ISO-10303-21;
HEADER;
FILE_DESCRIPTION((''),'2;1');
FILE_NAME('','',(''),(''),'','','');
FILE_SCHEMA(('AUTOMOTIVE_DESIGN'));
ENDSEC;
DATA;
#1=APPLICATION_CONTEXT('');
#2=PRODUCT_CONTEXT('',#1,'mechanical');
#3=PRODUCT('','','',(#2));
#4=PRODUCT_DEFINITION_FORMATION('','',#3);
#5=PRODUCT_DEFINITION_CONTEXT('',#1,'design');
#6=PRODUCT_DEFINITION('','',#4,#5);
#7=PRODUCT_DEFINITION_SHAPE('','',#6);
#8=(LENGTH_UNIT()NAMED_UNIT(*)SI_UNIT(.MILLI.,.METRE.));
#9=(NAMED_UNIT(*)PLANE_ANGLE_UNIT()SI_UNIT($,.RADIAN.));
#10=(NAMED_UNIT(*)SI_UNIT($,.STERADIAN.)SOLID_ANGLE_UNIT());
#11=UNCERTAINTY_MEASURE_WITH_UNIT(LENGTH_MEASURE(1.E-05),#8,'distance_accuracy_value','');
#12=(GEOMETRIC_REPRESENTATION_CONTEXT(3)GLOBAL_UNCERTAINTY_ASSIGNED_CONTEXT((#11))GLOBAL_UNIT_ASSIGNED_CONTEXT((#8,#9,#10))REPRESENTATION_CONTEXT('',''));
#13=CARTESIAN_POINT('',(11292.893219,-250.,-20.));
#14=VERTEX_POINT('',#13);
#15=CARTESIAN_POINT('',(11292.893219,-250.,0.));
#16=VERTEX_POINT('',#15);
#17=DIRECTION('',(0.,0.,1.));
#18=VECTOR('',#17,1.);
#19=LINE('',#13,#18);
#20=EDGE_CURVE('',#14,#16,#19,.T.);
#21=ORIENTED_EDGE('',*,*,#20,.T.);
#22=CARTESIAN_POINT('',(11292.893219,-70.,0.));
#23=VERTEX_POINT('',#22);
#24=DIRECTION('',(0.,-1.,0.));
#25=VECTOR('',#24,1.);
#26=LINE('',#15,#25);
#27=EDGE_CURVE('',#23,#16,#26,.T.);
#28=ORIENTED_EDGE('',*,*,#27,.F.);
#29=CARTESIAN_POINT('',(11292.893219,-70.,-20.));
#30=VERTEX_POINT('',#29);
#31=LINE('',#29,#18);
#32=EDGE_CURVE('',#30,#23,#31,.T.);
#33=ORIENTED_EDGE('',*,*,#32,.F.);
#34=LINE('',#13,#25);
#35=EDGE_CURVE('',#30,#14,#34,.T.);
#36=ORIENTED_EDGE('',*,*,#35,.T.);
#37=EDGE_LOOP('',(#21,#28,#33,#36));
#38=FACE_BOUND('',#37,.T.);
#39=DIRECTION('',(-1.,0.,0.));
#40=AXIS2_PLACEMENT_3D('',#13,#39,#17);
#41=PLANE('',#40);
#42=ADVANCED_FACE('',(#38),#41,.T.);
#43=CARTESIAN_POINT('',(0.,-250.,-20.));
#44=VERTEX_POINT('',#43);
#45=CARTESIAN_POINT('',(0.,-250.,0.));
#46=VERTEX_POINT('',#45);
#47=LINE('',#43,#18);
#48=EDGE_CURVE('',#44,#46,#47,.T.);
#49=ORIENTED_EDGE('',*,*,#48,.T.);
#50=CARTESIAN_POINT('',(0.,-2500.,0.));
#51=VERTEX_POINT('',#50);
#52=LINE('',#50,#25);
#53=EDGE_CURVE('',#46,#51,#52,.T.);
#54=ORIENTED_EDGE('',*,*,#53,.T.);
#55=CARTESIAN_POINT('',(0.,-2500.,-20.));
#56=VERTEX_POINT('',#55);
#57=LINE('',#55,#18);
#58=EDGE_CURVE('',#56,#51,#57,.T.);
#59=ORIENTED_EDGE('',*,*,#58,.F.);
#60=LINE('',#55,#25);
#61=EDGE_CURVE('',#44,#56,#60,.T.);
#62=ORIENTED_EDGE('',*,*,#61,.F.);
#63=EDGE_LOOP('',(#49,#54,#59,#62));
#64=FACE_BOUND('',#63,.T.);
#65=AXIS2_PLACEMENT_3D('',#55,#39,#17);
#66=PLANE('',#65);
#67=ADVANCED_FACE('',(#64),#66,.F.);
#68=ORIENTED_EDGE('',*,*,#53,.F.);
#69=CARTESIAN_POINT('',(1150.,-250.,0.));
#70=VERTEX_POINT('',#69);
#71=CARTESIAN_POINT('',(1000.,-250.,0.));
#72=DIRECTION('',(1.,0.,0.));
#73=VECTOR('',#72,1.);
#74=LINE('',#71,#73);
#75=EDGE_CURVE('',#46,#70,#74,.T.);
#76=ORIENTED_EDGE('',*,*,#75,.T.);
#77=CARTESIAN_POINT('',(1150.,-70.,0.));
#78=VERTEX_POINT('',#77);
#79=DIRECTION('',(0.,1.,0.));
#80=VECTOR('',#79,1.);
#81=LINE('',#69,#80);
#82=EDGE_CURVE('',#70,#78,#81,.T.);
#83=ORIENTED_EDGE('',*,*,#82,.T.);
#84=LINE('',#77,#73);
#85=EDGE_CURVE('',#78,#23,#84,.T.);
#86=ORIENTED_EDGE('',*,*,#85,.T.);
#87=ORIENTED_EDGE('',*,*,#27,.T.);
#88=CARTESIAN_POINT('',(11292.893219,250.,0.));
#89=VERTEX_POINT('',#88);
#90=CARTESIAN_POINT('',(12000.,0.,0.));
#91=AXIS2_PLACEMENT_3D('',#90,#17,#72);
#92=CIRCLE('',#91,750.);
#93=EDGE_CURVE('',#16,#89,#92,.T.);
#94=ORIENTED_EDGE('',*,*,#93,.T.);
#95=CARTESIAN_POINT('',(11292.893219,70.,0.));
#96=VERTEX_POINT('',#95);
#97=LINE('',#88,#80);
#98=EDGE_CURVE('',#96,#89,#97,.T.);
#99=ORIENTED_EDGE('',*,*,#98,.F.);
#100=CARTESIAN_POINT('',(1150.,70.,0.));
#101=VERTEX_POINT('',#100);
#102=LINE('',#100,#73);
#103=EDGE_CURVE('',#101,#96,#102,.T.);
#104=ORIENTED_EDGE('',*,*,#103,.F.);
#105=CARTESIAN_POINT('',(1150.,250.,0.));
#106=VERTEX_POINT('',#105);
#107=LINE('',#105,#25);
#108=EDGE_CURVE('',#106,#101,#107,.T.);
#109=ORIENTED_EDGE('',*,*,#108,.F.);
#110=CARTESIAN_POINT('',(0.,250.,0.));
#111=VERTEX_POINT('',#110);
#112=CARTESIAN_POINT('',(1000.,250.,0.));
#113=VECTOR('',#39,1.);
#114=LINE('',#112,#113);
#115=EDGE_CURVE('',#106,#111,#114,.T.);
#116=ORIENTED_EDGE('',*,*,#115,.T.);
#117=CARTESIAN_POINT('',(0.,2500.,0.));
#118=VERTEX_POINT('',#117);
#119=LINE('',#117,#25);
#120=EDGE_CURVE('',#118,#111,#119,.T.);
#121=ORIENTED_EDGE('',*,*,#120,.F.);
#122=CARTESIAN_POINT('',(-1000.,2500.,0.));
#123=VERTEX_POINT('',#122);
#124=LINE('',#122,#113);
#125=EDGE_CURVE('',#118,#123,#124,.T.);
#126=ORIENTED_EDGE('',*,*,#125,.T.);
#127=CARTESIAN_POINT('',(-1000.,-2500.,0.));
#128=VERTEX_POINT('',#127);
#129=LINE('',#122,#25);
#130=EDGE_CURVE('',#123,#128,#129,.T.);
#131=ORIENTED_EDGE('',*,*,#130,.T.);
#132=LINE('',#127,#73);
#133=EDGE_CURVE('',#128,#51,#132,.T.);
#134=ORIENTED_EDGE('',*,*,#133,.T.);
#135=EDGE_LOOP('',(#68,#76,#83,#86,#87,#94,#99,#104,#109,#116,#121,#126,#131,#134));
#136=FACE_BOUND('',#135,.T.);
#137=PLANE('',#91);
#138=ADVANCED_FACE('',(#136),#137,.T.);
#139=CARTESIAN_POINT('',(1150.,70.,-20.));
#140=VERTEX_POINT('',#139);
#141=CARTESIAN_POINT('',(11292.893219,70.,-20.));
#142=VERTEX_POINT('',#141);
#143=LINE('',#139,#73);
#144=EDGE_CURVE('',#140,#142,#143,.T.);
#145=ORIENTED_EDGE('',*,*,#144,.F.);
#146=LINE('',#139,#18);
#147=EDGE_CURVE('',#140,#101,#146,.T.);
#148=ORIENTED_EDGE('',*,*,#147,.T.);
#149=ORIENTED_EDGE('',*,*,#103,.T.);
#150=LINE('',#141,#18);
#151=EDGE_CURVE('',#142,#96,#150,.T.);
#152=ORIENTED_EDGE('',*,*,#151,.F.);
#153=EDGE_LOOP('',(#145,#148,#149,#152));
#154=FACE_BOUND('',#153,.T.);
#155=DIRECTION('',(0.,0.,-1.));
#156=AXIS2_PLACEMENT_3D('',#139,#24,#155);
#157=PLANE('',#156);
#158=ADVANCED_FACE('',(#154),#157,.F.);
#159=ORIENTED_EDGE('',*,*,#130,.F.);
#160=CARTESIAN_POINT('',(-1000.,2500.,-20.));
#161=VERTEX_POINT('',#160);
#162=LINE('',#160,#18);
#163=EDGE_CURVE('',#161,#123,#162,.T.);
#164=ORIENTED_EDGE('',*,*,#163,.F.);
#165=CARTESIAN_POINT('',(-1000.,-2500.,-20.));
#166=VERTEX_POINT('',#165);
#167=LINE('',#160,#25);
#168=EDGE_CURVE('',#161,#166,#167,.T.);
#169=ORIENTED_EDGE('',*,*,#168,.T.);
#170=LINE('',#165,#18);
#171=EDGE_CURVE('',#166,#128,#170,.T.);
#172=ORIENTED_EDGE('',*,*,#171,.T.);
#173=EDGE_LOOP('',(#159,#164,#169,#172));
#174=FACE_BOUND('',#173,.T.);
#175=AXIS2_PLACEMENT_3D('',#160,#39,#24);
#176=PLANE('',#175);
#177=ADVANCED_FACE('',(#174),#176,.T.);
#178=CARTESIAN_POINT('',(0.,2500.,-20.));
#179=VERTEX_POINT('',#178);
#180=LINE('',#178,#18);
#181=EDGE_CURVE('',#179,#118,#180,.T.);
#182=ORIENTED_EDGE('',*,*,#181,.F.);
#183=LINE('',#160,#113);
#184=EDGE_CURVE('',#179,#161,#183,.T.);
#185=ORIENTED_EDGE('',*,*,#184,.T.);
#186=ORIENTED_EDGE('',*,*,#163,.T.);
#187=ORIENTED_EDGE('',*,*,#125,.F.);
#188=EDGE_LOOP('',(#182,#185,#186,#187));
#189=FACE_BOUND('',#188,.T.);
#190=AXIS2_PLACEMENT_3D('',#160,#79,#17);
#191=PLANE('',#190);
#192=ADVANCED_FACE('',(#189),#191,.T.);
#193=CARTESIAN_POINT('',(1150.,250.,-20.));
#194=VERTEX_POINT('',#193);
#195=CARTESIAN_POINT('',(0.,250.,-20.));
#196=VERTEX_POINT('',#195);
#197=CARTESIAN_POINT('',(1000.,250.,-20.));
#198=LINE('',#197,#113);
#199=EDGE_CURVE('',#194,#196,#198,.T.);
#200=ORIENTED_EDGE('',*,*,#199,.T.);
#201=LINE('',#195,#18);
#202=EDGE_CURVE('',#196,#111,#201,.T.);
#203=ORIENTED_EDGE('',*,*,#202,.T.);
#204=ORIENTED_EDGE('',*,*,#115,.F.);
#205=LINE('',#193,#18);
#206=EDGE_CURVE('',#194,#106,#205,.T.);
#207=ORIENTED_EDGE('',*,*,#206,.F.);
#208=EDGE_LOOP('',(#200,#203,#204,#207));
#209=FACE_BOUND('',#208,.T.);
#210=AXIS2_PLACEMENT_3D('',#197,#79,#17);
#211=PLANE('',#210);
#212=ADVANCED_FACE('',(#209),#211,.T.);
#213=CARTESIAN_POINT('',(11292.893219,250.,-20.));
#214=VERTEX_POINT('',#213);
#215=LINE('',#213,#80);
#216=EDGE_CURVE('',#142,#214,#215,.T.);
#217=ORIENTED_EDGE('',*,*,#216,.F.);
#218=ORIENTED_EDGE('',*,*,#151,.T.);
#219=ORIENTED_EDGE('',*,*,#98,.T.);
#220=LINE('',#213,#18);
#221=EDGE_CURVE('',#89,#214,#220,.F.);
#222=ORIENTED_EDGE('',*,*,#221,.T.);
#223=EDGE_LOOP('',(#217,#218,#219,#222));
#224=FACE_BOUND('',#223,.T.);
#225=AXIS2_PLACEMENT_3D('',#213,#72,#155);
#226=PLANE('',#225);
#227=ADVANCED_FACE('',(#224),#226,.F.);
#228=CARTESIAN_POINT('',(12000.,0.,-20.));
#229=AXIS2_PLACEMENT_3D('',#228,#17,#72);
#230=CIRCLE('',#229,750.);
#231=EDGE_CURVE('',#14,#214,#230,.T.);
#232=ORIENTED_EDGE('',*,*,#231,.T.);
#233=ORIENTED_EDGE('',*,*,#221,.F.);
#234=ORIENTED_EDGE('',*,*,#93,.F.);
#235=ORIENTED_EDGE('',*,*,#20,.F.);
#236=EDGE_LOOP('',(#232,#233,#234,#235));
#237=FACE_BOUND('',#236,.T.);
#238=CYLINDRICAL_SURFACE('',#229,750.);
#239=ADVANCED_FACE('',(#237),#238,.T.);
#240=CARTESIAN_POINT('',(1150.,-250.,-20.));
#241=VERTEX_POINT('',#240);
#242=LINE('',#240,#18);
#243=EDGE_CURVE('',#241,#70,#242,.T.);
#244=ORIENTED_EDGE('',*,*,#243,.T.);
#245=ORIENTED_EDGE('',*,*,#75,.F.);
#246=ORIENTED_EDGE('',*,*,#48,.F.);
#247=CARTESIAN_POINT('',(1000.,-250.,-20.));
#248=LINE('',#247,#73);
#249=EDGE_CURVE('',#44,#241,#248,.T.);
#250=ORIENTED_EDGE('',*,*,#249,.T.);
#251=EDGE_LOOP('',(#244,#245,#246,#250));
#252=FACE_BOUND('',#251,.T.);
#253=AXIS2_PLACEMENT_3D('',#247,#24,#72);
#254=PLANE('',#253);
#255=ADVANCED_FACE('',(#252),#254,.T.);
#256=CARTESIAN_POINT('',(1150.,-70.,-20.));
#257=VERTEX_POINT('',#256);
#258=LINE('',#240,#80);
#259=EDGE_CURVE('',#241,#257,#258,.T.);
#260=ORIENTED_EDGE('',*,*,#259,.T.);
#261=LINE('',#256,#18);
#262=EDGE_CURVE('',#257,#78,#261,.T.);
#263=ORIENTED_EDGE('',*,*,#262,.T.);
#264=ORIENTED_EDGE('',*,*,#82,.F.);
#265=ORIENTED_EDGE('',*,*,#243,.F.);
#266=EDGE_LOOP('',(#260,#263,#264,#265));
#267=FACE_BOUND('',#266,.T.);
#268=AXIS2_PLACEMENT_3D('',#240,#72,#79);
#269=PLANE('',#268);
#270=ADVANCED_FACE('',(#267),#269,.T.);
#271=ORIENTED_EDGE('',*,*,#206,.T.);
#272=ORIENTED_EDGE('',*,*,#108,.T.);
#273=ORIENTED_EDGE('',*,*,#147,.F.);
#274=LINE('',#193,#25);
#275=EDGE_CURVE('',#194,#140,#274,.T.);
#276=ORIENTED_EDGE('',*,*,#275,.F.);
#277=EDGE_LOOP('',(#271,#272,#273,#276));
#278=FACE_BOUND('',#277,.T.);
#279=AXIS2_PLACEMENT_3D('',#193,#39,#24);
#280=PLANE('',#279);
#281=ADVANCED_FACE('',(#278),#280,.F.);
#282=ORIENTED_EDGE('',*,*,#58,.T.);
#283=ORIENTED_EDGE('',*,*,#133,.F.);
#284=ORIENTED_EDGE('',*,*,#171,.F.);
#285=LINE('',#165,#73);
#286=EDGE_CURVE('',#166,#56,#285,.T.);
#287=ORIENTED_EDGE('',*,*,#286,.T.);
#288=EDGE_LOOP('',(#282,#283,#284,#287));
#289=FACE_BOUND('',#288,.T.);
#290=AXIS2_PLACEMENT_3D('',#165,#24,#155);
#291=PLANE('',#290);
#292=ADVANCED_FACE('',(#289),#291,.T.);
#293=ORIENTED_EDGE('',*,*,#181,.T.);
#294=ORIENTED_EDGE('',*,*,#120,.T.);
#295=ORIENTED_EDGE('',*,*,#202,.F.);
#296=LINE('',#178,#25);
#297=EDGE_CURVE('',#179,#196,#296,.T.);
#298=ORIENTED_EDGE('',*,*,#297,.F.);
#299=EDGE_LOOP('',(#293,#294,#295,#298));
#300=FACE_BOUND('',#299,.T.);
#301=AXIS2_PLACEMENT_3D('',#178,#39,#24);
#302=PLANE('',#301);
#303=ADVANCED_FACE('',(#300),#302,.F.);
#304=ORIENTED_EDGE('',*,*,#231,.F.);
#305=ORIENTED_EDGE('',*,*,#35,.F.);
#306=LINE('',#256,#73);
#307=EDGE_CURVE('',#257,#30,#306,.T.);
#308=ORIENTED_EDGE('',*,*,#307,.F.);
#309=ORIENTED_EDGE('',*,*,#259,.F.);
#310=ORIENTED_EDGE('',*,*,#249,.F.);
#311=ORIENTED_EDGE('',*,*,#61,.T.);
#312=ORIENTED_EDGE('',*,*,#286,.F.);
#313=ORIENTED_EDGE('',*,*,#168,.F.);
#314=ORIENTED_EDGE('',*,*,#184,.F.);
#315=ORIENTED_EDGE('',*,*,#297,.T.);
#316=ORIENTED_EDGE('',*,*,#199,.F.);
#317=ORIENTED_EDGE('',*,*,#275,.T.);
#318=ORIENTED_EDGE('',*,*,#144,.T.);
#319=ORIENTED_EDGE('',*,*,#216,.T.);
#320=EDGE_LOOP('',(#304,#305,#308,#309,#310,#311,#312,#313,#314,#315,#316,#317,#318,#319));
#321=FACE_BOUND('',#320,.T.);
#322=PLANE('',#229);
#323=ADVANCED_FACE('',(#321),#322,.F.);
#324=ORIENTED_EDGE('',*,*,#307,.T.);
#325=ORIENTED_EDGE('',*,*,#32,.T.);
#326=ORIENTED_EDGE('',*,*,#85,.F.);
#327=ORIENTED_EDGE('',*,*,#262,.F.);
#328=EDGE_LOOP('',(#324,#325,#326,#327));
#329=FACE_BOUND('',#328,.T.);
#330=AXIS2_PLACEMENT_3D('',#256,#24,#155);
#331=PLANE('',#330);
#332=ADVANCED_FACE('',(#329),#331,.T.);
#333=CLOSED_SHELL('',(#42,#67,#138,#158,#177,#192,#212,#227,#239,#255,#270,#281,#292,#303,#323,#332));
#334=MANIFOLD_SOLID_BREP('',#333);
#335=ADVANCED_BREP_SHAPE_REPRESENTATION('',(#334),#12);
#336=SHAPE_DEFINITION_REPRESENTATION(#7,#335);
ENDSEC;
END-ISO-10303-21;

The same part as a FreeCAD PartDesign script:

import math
import FreeCAD as App
import Part
import Sketcher
from FreeCAD import Vector


def add_polygon(sketch, points):
    """Adds a closed chain of lines whose ends are joined by coincident constraints."""
    first, n = sketch.GeometryCount, len(points)
    for a, b in zip(points, points[1:] + points[:1]):
        sketch.addGeometry(Part.LineSegment(App.Vector(*a, 0), App.Vector(*b, 0)), False)
    for i in range(n):
        sketch.addConstraint(Sketcher.Constraint("Coincident", first + i, 2, first + (i + 1) % n, 1))

doc = App.newDocument("Part")
body = doc.addObject("PartDesign::Body", "Body")

sketch1 = doc.addObject("Sketcher::SketchObject", "Sketch")
body.addObject(sketch1)
sketch1.AttachmentSupport = (doc.XY_Plane, [""])
sketch1.MapMode = "FlatFace"
sketch1.addGeometry([
    Part.LineSegment(Vector(5000, 250, 0), Vector(1000, 250, 0)),
    Part.LineSegment(Vector(1000, 250, 0), Vector(1000, 2500, 0)),
    Part.LineSegment(Vector(1000, 2500, 0), Vector(-1000, 2500, 0)),
    Part.LineSegment(Vector(-1000, 2500, 0), Vector(-1000, -2500, 0)),
    Part.LineSegment(Vector(-1000, -2500, 0), Vector(1000, -2500, 0)),
    Part.LineSegment(Vector(1000, -2500, 0), Vector(1000, -250, 0)),
    Part.LineSegment(Vector(1000, -250, 0), Vector(5000, -250, 0)),
    Part.LineSegment(Vector(5000, -250, 0), Vector(5000, -125, 0)),
    Part.LineSegment(Vector(5000, -125, 0), Vector(9000, -125, 0)),
    Part.LineSegment(Vector(9000, -125, 0), Vector(9000, -100, 0)),
    Part.LineSegment(Vector(9000, -100, 0), Vector(11257, -100, 0)),
    Part.ArcOfCircle(Part.Circle(Vector(12000, 0, 0), Vector(0, 0, 1), 750), math.radians(-172), math.radians(172)),
    Part.LineSegment(Vector(11257, 100, 0), Vector(9000, 100, 0)),
    Part.LineSegment(Vector(9000, 100, 0), Vector(9000, 125, 0)),
    Part.LineSegment(Vector(9000, 125, 0), Vector(5000, 125, 0)),
    Part.LineSegment(Vector(5000, 125, 0), Vector(5000, 250, 0)),
], False)
sketch1.addConstraint([
    Sketcher.Constraint("Coincident", 0, 2, 1, 1),
    Sketcher.Constraint("Coincident", 1, 2, 2, 1),
    Sketcher.Constraint("Coincident", 2, 2, 3, 1),
    Sketcher.Constraint("Coincident", 3, 2, 4, 1),
    Sketcher.Constraint("Coincident", 4, 2, 5, 1),
    Sketcher.Constraint("Coincident", 5, 2, 6, 1),
    Sketcher.Constraint("Coincident", 6, 2, 7, 1),
    Sketcher.Constraint("Coincident", 7, 2, 8, 1),
    Sketcher.Constraint("Coincident", 8, 2, 9, 1),
    Sketcher.Constraint("Coincident", 9, 2, 10, 1),
    Sketcher.Constraint("Coincident", 10, 2, 11, 1),
    Sketcher.Constraint("Coincident", 11, 2, 12, 1),
    Sketcher.Constraint("Coincident", 12, 2, 13, 1),
    Sketcher.Constraint("Coincident", 13, 2, 14, 1),
    Sketcher.Constraint("Coincident", 14, 2, 15, 1),
    Sketcher.Constraint("Coincident", 15, 2, 0, 1),
    Sketcher.Constraint("Horizontal", 0),
    Sketcher.Constraint("Vertical", 1),
    Sketcher.Constraint("Horizontal", 2),
    Sketcher.Constraint("Vertical", 3),
    Sketcher.Constraint("Horizontal", 4),
    Sketcher.Constraint("Vertical", 5),
    Sketcher.Constraint("Horizontal", 6),
    Sketcher.Constraint("Vertical", 7),
    Sketcher.Constraint("Horizontal", 8),
    Sketcher.Constraint("Vertical", 9),
    Sketcher.Constraint("Horizontal", 10),
    Sketcher.Constraint("Horizontal", 12),
    Sketcher.Constraint("Vertical", 13),
    Sketcher.Constraint("Horizontal", 14),
    Sketcher.Constraint("Vertical", 15),
    Sketcher.Constraint("Symmetric", 1, 2, 3, 2, -1, 1),
    Sketcher.Constraint("Symmetric", 0, 2, 5, 2, -1),
    Sketcher.Constraint("Symmetric", 9, 2, 12, 2, -1),
    Sketcher.Constraint("Symmetric", 7, 2, 14, 2, -1),
    Sketcher.Constraint("PointOnObject", 11, 3, -1),
    Sketcher.Constraint("Equal", 6, 8),
    Sketcher.Constraint("Radius", 11, 750.0),
    Sketcher.Constraint("DistanceX", 0, 2, 0, 1, 4000.0),
    Sketcher.Constraint("DistanceX", 2, 2, 2, 1, 2000.0),
    Sketcher.Constraint("DistanceY", 1, 1, 1, 2, 2250.0),
    Sketcher.Constraint("DistanceY", 3, 2, 3, 1, 5000.0),
    Sketcher.Constraint("DistanceY", 7, 1, 7, 2, 125.0),
    Sketcher.Constraint("DistanceY", 9, 1, 9, 2, 25.0),
    Sketcher.Constraint("DistanceX", -1, 1, 11, 3, 12000.0),
])
pad1 = doc.addObject("PartDesign::Pad", "Pad")
body.addObject(pad1)
pad1.Profile = sketch1
pad1.Length = 20
pad1.Reversed = True

sketch2 = doc.addObject("Sketcher::SketchObject", "Sketch001")
body.addObject(sketch2)
sketch2.AttachmentSupport = (doc.XY_Plane, [""])
sketch2.MapMode = "FlatFace"
add_polygon(sketch2, [(0, 2500), (0, 250), (1000, 250), (1000, 2500)])
add_polygon(sketch2, [(0, -250), (0, -2500), (1000, -2500), (1000, -250)])
sketch2.addConstraint([
    Sketcher.Constraint("Vertical", 0),
    Sketcher.Constraint("Horizontal", 1),
    Sketcher.Constraint("Vertical", 2),
    Sketcher.Constraint("Horizontal", 3),
    Sketcher.Constraint("Vertical", 4),
    Sketcher.Constraint("Horizontal", 5),
    Sketcher.Constraint("Vertical", 6),
    Sketcher.Constraint("Horizontal", 7),
    Sketcher.Constraint("Symmetric", 3, 2, 4, 2, -1, 1),
    Sketcher.Constraint("Symmetric", 1, 2, 6, 2, -1),
    Sketcher.Constraint("PointOnObject", 0, 2, -2),
    Sketcher.Constraint("DistanceX", 1, 1, 1, 2, 1000.0),
    Sketcher.Constraint("DistanceY", 0, 2, 0, 1, 2250.0),
    Sketcher.Constraint("DistanceY", -1, 1, 0, 2, 250.0),
])
pocket1 = doc.addObject("PartDesign::Pocket", "Pocket")
body.addObject(pocket1)
pocket1.Profile = sketch2
pocket1.Type = "ThroughAll"

sketch3 = doc.addObject("Sketcher::SketchObject", "Sketch002")
body.addObject(sketch3)
sketch3.AttachmentSupport = (doc.XY_Plane, [""])
sketch3.MapMode = "FlatFace"
add_polygon(sketch3, [(1500, -250), (5000, -250), (5000, -150), (3250, -150), (3250, -200), (1500, -200)])
sketch3.addConstraint([
    Sketcher.Constraint("Horizontal", 0),
    Sketcher.Constraint("Vertical", 1),
    Sketcher.Constraint("Horizontal", 2),
    Sketcher.Constraint("Vertical", 3),
    Sketcher.Constraint("Horizontal", 4),
    Sketcher.Constraint("Vertical", 5),
    Sketcher.Constraint("Equal", 2, 4),
    Sketcher.Constraint("Equal", 3, 5),
    Sketcher.Constraint("DistanceX", 0, 1, 0, 2, 3500.0),
    Sketcher.Constraint("DistanceY", 1, 1, 1, 2, 100.0),
    Sketcher.Constraint("DistanceX", -1, 1, 0, 2, 5000.0),
    Sketcher.Constraint("DistanceY", 0, 2, -1, 1, 250.0),
])
pocket2 = doc.addObject("PartDesign::Pocket", "Pocket001")
body.addObject(pocket2)
pocket2.Profile = sketch3
pocket2.Type = "ThroughAll"
doc.recompute()

mirrored = doc.addObject("PartDesign::Mirrored", "Mirrored")
body.addObject(mirrored)
mirrored.Originals = [pocket2]
mirrored.MirrorPlane = (doc.XZ_Plane, [""])
body.Tip = mirrored

sketch4 = doc.addObject("Sketcher::SketchObject", "Sketch003")
body.addObject(sketch4)
sketch4.AttachmentSupport = (doc.XY_Plane, [""])
sketch4.MapMode = "FlatFace"
add_polygon(sketch4, [(0, 250), (0, -250), (11500, -250), (11500, 250)])
sketch4.addConstraint([
    Sketcher.Constraint("Vertical", 0),
    Sketcher.Constraint("Horizontal", 1),
    Sketcher.Constraint("Vertical", 2),
    Sketcher.Constraint("Horizontal", 3),
    Sketcher.Constraint("Symmetric", 0, 2, 3, 2, -1, 1),
    Sketcher.Constraint("DistanceX", 1, 1, 1, 2, 11500.0),
    Sketcher.Constraint("DistanceY", 0, 2, 0, 1, 500.0),
])
pad2 = doc.addObject("PartDesign::Pad", "Pad001")
body.addObject(pad2)
pad2.Profile = sketch4
pad2.Length = 20
pad2.Reversed = True

sketch5 = doc.addObject("Sketcher::SketchObject", "Sketch004")
body.addObject(sketch5)
sketch5.AttachmentSupport = (doc.XY_Plane, [""])
sketch5.MapMode = "FlatFace"
add_polygon(sketch5, [(1150, 250), (1150, 70), (11293, 70), (11293, 250)])
sketch5.addConstraint([
    Sketcher.Constraint("Vertical", 0),
    Sketcher.Constraint("Horizontal", 1),
    Sketcher.Constraint("Vertical", 2),
    Sketcher.Constraint("Horizontal", 3),
    Sketcher.Constraint("DistanceY", 0, 2, 0, 1, 180.0),
    Sketcher.Constraint("DistanceX", -1, 1, 0, 2, 1150.0),
    Sketcher.Constraint("DistanceY", -1, 1, 0, 2, 70.0),
    Sketcher.Constraint("DistanceX", 1, 1, 1, 2, 10142.893219),
])
pocket3 = doc.addObject("PartDesign::Pocket", "Pocket002")
body.addObject(pocket3)
pocket3.Profile = sketch5
pocket3.Type = "ThroughAll"
doc.recompute()

mirrored2 = doc.addObject("PartDesign::Mirrored", "Mirrored001")
body.addObject(mirrored2)
mirrored2.Originals = [pocket3]
mirrored2.MirrorPlane = (doc.XZ_Plane, [""])
body.Tip = mirrored2

doc.recompute()
